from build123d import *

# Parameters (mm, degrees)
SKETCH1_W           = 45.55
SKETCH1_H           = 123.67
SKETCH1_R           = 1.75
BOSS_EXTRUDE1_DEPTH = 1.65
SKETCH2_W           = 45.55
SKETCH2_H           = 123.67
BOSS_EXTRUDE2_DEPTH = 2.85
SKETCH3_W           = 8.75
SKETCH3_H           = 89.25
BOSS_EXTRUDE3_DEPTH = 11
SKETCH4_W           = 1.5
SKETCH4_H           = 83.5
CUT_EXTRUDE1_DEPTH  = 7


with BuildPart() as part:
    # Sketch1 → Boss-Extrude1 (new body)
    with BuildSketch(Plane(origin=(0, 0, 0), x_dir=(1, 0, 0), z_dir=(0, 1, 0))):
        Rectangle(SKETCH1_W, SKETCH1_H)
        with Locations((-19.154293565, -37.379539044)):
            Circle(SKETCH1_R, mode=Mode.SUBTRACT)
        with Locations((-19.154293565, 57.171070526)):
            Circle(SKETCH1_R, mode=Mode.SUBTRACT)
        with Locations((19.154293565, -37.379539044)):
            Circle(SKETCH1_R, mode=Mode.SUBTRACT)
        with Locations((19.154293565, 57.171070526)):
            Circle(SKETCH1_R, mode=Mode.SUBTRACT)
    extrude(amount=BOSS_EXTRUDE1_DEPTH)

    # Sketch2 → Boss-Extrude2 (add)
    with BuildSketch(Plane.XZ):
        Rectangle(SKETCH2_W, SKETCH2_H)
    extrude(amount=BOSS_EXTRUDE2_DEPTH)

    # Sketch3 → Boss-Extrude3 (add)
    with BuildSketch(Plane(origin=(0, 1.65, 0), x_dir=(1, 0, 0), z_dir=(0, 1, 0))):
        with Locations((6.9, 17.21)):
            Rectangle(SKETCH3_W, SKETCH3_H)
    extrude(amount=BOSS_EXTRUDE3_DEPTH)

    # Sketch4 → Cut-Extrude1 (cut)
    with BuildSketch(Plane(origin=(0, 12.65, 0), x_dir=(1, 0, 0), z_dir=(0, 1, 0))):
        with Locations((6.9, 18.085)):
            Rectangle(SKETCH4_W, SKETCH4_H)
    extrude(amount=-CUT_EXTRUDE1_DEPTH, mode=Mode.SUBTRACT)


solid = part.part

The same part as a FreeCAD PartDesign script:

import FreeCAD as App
import Part
import Sketcher
Q = App.Units.Quantity

doc = App.newDocument("Part")
body = doc.addObject("PartDesign::Body", "Body")

# Sketch on XZ plane
sketch1 = body.newObject("Sketcher::SketchObject", "Sketch")
sketch1.AttachmentSupport = (doc.getObject("XZ_Plane"), [""])
sketch1.MapMode = "FlatFace"
sketch1.addGeometry([
    Part.LineSegment(App.Vector(-22.8, -61.8, 0), App.Vector(-22.8, 61.8, 0)),  # 0
    Part.LineSegment(App.Vector(-22.8, 61.8, 0), App.Vector(22.8, 61.8, 0)),  # 1
    Part.LineSegment(App.Vector(22.8, 61.8, 0), App.Vector(22.8, -61.8, 0)),  # 2
    Part.LineSegment(App.Vector(22.8, -61.8, 0), App.Vector(-22.8, -61.8, 0)),  # 3
    Part.Circle(App.Vector(-19.2, 37.4, 0), App.Vector(0, 0, 1), 1.8),  # 4
    Part.Circle(App.Vector(19.2, 37.4, 0), App.Vector(0, 0, 1), 1.8),  # 5
    Part.Circle(App.Vector(-19.2, -57.2, 0), App.Vector(0, 0, 1), 1.8),  # 6
    Part.Circle(App.Vector(19.2, -57.2, 0), App.Vector(0, 0, 1), 1.8),  # 7
], False)
sketch1.addConstraint([
    Sketcher.Constraint("Coincident", 0, 2, 1, 1),
    Sketcher.Constraint("Coincident", 1, 2, 2, 1),
    Sketcher.Constraint("Coincident", 2, 2, 3, 1),
    Sketcher.Constraint("Coincident", 3, 2, 0, 1),
    Sketcher.Constraint("Vertical", 0),
    Sketcher.Constraint("Horizontal", 1),
    Sketcher.Constraint("Vertical", 2),
    Sketcher.Constraint("Horizontal", 3),
    Sketcher.Constraint("Equal", 4, 5),
    Sketcher.Constraint("Equal", 5, 6),
    Sketcher.Constraint("Equal", 6, 7),
    Sketcher.Constraint("Symmetric", 0, 2, 2, 2, -1, 1),
    Sketcher.Constraint("Symmetric", 4, 3, 5, 3, -2),
    Sketcher.Constraint("Symmetric", 6, 3, 7, 3, -2),
    Sketcher.Constraint("Vertical", 4, 3, 6, 3),
    Sketcher.Constraint("Diameter", 4, Q("3.5 mm")),
    Sketcher.Constraint("DistanceX", 1, 1, 1, 2, Q("45.55 mm")),
    Sketcher.Constraint("DistanceY", 0, 1, 0, 2, Q("123.67 mm")),
    Sketcher.Constraint("DistanceY", -1, 1, 4, 3, Q("37.379539 mm")),
    Sketcher.Constraint("DistanceY", 6, 3, -1, 1, Q("57.171071 mm")),
    Sketcher.Constraint("DistanceX", 4, 3, -1, 1, Q("19.154294 mm")),
])
pad1 = body.newObject("PartDesign::Pad", "Pad")
pad1.Profile = sketch1
pad1.Length = 1.65
pad1.Reversed = True

# Sketch on XZ plane
sketch2 = body.newObject("Sketcher::SketchObject", "Sketch001")
sketch2.AttachmentSupport = (doc.getObject("XZ_Plane"), [""])
sketch2.MapMode = "FlatFace"
sketch2.addGeometry([
    Part.LineSegment(App.Vector(-23, 62, 0), App.Vector(-23, -62, 0)),
    Part.LineSegment(App.Vector(-23, -62, 0), App.Vector(23, -62, 0)),
    Part.LineSegment(App.Vector(23, -62, 0), App.Vector(23, 62, 0)),
    Part.LineSegment(App.Vector(23, 62, 0), App.Vector(-23, 62, 0)),
], False)
sketch2.addConstraint([
    Sketcher.Constraint("Coincident", 0, 2, 1, 1),
    Sketcher.Constraint("Coincident", 1, 2, 2, 1),
    Sketcher.Constraint("Coincident", 2, 2, 3, 1),
    Sketcher.Constraint("Coincident", 3, 2, 0, 1),
    Sketcher.Constraint("Vertical", 0),
    Sketcher.Constraint("Horizontal", 1),
    Sketcher.Constraint("Vertical", 2),
    Sketcher.Constraint("Horizontal", 3),
    Sketcher.Constraint("Symmetric", 0, 2, 2, 2, -1, 1),
    Sketcher.Constraint("DistanceX", 1, 1, 1, 2, Q("45.55 mm")),
    Sketcher.Constraint("DistanceY", 0, 2, 0, 1, Q("123.67 mm")),
])
pad2 = body.newObject("PartDesign::Pad", "Pad001")
pad2.Profile = sketch2
pad2.Length = 2.85

# Sketch on XZ plane
sketch3 = body.newObject("Sketcher::SketchObject", "Sketch002")
sketch3.AttachmentSupport = (doc.getObject("XZ_Plane"), [""])
sketch3.MapMode = "FlatFace"
sketch3.AttachmentOffset = App.Placement(App.Vector(0, 0, -1.65), App.Rotation())
sketch3.addGeometry([
    Part.LineSegment(App.Vector(3, -62, 0), App.Vector(3, 27, 0)),
    Part.LineSegment(App.Vector(3, 27, 0), App.Vector(11, 27, 0)),
    Part.LineSegment(App.Vector(11, 27, 0), App.Vector(11, -62, 0)),
    Part.LineSegment(App.Vector(11, -62, 0), App.Vector(3, -62, 0)),
], False)
sketch3.addConstraint([
    Sketcher.Constraint("Coincident", 0, 2, 1, 1),
    Sketcher.Constraint("Coincident", 1, 2, 2, 1),
    Sketcher.Constraint("Coincident", 2, 2, 3, 1),
    Sketcher.Constraint("Coincident", 3, 2, 0, 1),
    Sketcher.Constraint("Vertical", 0),
    Sketcher.Constraint("Horizontal", 1),
    Sketcher.Constraint("Vertical", 2),
    Sketcher.Constraint("Horizontal", 3),
    Sketcher.Constraint("DistanceX", 1, 1, 1, 2, Q("8.75 mm")),
    Sketcher.Constraint("DistanceY", 0, 1, 0, 2, Q("89.25 mm")),
    Sketcher.Constraint("DistanceX", -1, 1, 0, 2, Q("2.525 mm")),
    Sketcher.Constraint("DistanceY", -1, 1, 0, 2, Q("27.415 mm")),
])
pad3 = body.newObject("PartDesign::Pad", "Pad002")
pad3.Profile = sketch3
pad3.Length = 11
pad3.Reversed = True

# Sketch on XZ plane
sketch4 = body.newObject("Sketcher::SketchObject", "Sketch003")
sketch4.AttachmentSupport = (doc.getObject("XZ_Plane"), [""])
sketch4.MapMode = "FlatFace"
sketch4.AttachmentOffset = App.Placement(App.Vector(0, 0, -12.65), App.Rotation())
sketch4.addGeometry([
    Part.LineSegment(App.Vector(6.2, -59.8, 0), App.Vector(6.2, 23.7, 0)),
    Part.LineSegment(App.Vector(6.2, 23.7, 0), App.Vector(7.7, 23.7, 0)),
    Part.LineSegment(App.Vector(7.7, 23.7, 0), App.Vector(7.7, -59.8, 0)),
    Part.LineSegment(App.Vector(7.7, -59.8, 0), App.Vector(6.2, -59.8, 0)),
], False)
sketch4.addConstraint([
    Sketcher.Constraint("Coincident", 0, 2, 1, 1),
    Sketcher.Constraint("Coincident", 1, 2, 2, 1),
    Sketcher.Constraint("Coincident", 2, 2, 3, 1),
    Sketcher.Constraint("Coincident", 3, 2, 0, 1),
    Sketcher.Constraint("Vertical", 0),
    Sketcher.Constraint("Horizontal", 1),
    Sketcher.Constraint("Vertical", 2),
    Sketcher.Constraint("Horizontal", 3),
    Sketcher.Constraint("DistanceX", 1, 1, 1, 2, Q("1.5 mm")),
    Sketcher.Constraint("DistanceY", 0, 1, 0, 2, Q("83.5 mm")),
    Sketcher.Constraint("DistanceX", -1, 1, 0, 2, Q("6.15 mm")),
    Sketcher.Constraint("DistanceY", -1, 1, 0, 2, Q("23.665 mm")),
])
pocket1 = body.newObject("PartDesign::Pocket", "Pocket")
pocket1.Profile = sketch4
pocket1.Length = 7
pocket1.Reversed = True

doc.recompute()
